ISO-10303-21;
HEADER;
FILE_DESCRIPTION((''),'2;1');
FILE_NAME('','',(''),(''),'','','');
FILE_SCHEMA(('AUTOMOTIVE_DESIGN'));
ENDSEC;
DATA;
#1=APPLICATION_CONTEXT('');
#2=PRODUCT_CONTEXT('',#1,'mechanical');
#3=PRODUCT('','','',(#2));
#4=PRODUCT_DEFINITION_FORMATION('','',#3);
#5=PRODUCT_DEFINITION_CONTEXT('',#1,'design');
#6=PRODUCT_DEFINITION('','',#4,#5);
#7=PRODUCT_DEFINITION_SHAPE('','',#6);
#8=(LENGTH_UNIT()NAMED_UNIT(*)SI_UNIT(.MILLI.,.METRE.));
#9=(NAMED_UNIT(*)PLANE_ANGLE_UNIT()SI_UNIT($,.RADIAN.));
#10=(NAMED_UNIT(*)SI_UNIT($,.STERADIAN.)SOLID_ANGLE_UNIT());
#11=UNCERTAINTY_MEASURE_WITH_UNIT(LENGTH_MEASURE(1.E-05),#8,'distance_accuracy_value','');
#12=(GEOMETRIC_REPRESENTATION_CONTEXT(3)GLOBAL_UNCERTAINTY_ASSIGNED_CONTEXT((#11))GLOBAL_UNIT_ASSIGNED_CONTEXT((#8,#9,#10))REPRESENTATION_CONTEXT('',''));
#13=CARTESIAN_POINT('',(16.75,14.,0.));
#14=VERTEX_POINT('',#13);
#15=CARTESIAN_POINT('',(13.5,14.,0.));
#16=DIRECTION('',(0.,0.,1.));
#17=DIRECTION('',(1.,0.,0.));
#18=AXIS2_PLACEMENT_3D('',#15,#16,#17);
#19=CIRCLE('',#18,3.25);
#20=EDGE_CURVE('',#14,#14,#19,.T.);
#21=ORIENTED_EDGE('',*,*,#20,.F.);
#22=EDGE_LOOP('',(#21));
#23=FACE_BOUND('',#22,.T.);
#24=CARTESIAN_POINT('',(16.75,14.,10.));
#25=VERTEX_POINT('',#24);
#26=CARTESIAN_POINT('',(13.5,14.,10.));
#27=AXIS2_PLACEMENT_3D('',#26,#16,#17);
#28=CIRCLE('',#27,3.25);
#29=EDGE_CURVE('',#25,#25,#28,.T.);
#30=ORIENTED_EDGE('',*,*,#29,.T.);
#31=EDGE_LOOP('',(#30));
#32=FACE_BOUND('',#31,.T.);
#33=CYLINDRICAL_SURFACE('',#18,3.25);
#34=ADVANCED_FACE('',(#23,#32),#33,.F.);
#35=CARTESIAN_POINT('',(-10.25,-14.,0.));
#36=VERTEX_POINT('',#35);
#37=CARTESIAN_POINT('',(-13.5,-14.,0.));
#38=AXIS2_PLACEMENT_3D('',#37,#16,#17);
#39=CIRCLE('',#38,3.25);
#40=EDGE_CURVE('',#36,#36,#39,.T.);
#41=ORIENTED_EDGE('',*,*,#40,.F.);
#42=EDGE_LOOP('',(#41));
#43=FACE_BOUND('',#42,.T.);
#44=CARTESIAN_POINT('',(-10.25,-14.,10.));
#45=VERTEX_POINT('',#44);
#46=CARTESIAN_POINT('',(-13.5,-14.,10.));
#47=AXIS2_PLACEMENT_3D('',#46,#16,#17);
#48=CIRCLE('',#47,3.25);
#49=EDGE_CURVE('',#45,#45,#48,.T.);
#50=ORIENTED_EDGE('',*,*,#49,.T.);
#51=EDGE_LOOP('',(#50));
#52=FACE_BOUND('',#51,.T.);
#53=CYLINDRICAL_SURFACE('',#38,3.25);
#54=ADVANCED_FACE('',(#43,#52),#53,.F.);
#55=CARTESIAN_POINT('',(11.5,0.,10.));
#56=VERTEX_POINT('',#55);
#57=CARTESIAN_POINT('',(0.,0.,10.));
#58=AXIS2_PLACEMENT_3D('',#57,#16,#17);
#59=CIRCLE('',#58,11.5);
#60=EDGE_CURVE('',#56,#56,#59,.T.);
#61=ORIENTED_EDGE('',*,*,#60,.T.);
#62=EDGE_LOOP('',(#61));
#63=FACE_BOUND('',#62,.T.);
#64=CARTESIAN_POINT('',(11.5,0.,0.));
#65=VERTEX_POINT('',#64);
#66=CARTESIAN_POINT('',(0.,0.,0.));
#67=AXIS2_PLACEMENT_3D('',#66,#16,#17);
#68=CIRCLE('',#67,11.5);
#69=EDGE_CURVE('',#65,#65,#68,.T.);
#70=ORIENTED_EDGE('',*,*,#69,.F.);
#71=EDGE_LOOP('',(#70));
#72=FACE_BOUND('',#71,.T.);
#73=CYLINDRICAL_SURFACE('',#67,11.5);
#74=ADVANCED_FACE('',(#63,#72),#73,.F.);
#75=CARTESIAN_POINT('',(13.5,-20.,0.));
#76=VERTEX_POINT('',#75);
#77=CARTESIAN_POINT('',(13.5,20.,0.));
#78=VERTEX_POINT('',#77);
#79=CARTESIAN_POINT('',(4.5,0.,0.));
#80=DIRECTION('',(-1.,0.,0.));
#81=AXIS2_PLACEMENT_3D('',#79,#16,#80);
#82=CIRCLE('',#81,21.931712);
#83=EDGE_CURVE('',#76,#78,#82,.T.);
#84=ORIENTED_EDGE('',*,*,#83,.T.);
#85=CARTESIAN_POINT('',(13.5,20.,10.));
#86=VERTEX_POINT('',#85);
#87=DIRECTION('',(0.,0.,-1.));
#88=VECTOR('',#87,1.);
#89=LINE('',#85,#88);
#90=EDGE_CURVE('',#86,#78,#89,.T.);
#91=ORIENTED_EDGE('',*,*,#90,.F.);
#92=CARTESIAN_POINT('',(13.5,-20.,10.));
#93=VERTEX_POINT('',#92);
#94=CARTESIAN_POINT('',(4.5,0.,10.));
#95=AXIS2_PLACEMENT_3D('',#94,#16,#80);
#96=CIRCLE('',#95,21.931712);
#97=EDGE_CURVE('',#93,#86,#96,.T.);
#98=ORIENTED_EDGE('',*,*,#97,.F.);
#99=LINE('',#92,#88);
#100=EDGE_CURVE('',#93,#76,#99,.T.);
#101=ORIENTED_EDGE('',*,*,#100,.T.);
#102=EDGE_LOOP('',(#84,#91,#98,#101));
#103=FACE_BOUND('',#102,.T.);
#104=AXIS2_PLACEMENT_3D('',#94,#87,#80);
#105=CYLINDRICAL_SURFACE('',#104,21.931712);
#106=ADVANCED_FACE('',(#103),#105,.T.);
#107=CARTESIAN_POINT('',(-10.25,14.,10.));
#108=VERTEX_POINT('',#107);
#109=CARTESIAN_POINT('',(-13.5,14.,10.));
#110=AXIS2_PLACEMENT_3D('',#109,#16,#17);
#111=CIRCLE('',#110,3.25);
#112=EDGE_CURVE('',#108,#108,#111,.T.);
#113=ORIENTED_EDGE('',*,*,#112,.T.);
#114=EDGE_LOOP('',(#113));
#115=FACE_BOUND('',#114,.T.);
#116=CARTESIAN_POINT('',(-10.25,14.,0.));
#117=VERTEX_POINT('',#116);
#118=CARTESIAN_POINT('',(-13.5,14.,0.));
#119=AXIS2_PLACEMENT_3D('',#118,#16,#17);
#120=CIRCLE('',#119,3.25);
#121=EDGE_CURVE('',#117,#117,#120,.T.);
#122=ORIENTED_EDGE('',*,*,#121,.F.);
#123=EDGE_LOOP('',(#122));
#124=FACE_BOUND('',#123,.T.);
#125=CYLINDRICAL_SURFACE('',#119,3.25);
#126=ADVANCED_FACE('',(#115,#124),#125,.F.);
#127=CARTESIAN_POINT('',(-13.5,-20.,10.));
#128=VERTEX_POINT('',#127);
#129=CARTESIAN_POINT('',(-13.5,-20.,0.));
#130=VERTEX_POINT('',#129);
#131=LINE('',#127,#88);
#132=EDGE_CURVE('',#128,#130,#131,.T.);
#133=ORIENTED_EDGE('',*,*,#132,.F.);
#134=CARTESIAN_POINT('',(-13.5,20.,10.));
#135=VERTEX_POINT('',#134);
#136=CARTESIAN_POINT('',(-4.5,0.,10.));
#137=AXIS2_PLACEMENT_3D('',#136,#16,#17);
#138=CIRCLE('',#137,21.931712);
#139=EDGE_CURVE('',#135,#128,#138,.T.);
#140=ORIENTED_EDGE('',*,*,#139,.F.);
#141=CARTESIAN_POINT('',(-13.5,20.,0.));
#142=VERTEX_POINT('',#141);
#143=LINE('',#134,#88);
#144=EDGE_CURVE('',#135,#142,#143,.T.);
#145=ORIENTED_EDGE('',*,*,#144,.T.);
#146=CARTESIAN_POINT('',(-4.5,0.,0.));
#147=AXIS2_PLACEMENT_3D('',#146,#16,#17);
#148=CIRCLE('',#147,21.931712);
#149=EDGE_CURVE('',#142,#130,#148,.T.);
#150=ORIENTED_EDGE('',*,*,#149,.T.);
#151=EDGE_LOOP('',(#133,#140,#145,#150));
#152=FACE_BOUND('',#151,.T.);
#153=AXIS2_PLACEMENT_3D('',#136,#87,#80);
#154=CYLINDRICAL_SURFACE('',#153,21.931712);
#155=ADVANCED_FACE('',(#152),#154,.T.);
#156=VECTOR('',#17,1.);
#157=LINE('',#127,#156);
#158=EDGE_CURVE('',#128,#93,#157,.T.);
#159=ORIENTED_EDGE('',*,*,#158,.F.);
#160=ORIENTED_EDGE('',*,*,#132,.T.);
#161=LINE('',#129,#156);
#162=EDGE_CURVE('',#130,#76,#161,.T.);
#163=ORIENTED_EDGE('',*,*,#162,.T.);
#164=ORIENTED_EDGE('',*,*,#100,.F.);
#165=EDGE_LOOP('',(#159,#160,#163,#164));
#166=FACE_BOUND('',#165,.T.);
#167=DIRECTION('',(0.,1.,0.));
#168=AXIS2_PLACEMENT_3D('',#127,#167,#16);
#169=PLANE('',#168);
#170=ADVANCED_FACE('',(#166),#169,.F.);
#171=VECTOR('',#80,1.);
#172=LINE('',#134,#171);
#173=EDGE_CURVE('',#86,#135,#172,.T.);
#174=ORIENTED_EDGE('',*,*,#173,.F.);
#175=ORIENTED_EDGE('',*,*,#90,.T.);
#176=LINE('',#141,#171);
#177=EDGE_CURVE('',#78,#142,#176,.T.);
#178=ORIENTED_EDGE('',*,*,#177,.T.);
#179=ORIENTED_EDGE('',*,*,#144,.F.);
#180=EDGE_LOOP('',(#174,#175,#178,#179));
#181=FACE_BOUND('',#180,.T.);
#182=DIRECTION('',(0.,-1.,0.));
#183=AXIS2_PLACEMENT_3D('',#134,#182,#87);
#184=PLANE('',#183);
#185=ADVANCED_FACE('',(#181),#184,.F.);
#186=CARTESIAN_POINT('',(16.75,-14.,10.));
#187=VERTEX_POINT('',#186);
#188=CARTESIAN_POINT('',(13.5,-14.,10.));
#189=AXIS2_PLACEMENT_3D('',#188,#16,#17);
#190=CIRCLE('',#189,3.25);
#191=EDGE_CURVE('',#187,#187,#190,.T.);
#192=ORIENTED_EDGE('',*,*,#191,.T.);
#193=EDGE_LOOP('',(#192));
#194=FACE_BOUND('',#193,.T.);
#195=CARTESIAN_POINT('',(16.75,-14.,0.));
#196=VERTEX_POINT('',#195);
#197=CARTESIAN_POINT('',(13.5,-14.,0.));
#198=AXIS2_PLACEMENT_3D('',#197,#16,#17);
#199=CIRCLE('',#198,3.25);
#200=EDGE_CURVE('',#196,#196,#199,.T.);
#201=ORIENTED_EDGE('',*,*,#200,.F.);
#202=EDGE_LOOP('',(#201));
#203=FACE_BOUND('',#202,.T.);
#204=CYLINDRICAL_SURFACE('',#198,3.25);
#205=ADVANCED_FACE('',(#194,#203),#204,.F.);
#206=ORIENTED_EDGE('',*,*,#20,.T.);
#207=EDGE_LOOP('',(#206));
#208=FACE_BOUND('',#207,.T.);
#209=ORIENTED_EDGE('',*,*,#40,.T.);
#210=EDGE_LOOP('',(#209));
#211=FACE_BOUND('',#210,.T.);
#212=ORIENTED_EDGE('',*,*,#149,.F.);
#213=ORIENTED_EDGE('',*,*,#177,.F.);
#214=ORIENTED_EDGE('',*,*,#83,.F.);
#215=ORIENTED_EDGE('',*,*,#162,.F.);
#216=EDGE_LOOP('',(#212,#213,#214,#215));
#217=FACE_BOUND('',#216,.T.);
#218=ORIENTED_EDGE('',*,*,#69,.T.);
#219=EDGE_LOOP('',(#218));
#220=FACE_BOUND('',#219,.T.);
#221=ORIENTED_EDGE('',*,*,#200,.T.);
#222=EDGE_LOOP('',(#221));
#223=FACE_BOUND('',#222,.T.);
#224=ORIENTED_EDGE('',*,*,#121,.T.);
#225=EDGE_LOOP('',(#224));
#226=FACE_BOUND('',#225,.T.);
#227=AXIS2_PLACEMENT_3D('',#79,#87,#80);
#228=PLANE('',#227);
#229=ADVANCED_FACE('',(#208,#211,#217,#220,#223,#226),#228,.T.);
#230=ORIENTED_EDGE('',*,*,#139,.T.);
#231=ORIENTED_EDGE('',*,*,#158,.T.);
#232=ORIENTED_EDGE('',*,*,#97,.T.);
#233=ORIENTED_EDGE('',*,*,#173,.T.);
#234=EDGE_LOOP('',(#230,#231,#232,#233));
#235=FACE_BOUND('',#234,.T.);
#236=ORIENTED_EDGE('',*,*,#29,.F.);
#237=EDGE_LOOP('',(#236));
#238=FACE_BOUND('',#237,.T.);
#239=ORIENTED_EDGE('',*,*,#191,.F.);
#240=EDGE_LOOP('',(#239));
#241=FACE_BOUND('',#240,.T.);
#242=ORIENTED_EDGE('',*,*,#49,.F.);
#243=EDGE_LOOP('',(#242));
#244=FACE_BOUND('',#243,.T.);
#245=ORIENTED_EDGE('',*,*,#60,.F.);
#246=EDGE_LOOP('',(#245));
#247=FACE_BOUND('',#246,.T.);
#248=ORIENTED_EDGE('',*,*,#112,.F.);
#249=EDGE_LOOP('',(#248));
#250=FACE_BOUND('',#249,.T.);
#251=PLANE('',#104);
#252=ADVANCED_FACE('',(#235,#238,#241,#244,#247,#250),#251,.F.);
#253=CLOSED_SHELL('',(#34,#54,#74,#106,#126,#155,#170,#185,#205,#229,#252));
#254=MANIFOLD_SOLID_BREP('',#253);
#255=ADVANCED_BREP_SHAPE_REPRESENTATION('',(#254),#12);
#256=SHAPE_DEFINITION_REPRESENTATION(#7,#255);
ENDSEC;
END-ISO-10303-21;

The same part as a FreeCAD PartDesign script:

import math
import FreeCAD as App
import Part
import Sketcher

doc = App.newDocument("Part")
body = doc.addObject("PartDesign::Body", "Body")

sketch1 = body.newObject("Sketcher::SketchObject", "Sketch")
sketch1.AttachmentSupport = (doc.getObject("XY_Plane"), [""])
sketch1.MapMode = "FlatFace"
sketch1.addGeometry([
    Part.LineSegment(App.Vector(14, 20, 0), App.Vector(-14, 20, 0)),
    Part.ArcOfCircle(Part.Circle(App.Vector(-4, 0, 0), App.Vector(0, 0, 1), 22), math.radians(114), math.radians(246)),
    Part.LineSegment(App.Vector(-14, -20, 0), App.Vector(14, -20, 0)),
    Part.ArcOfCircle(Part.Circle(App.Vector(4, 0, 0), App.Vector(0, 0, 1), 22), math.radians(-66), math.radians(66)),
], False)
sketch1.addConstraint([
    Sketcher.Constraint("Coincident", 0, 2, 1, 1),
    Sketcher.Constraint("Coincident", 1, 2, 2, 1),
    Sketcher.Constraint("Coincident", 2, 2, 3, 1),
    Sketcher.Constraint("Coincident", 3, 2, 0, 1),
    Sketcher.Constraint("Horizontal", 0),
    Sketcher.Constraint("Horizontal", 2),
    Sketcher.Constraint("Equal", 1, 3),
    Sketcher.Constraint("Symmetric", 1, 3, 3, 3, -1, 1),
    Sketcher.Constraint("Symmetric", 0, 2, 1, 2, -1),
    Sketcher.Constraint("DistanceX", 0, 2, 0, 1, 27.0),
    Sketcher.Constraint("DistanceY", -1, 1, 0, 2, 20.0),
    Sketcher.Constraint("DistanceX", 1, 3, 3, 3, 9.0),
])
pad1 = body.newObject("PartDesign::Pad", "Pad")
pad1.Profile = sketch1
pad1.Length = 10

sketch2 = body.newObject("Sketcher::SketchObject", "Sketch001")
sketch2.AttachmentSupport = (doc.getObject("XY_Plane"), [""])
sketch2.MapMode = "FlatFace"
sketch2.AttachmentOffset = App.Placement(App.Vector(0, 0, 10), App.Rotation())
sketch2.addGeometry(Part.Circle(App.Vector(0, 0, 0), App.Vector(0, 0, 1), 12), False)
sketch2.addConstraint([
    Sketcher.Constraint("Coincident", 0, 3, -1, 1),
    Sketcher.Constraint("Diameter", 0, 23.0),
])
pocket1 = body.newObject("PartDesign::Pocket", "Pocket")
pocket1.Profile = sketch2
pocket1.Type = "ThroughAll"

sketch3 = body.newObject("Sketcher::SketchObject", "Sketch002")
sketch3.AttachmentSupport = (doc.getObject("XY_Plane"), [""])
sketch3.MapMode = "FlatFace"
sketch3.AttachmentOffset = App.Placement(App.Vector(0, 0, 10), App.Rotation())
sketch3.addGeometry([
    Part.Circle(App.Vector(-13.5, 14, 0), App.Vector(0, 0, 1), 3.2),
    Part.Circle(App.Vector(-13.5, -14, 0), App.Vector(0, 0, 1), 3.2),
    Part.Circle(App.Vector(13.5, -14, 0), App.Vector(0, 0, 1), 3.2),
    Part.Circle(App.Vector(13.5, 14, 0), App.Vector(0, 0, 1), 3.2),
], False)
sketch3.addConstraint([
    Sketcher.Constraint("Equal", 0, 1),
    Sketcher.Constraint("Equal", 1, 2),
    Sketcher.Constraint("Equal", 2, 3),
    Sketcher.Constraint("Symmetric", 0, 3, 2, 3, -1, 1),
    Sketcher.Constraint("Symmetric", 1, 3, 3, 3, -1, 1),
    Sketcher.Constraint("Symmetric", 1, 3, 2, 3, -2),
    Sketcher.Constraint("Diameter", 0, 6.5),
    Sketcher.Constraint("DistanceY", -1, 1, 0, 3, 14.0),
    Sketcher.Constraint("DistanceX", 1, 3, 2, 3, 27.0),
])
pocket2 = body.newObject("PartDesign::Pocket", "Pocket001")
pocket2.Profile = sketch3
pocket2.Type = "ThroughAll"

doc.recompute()
